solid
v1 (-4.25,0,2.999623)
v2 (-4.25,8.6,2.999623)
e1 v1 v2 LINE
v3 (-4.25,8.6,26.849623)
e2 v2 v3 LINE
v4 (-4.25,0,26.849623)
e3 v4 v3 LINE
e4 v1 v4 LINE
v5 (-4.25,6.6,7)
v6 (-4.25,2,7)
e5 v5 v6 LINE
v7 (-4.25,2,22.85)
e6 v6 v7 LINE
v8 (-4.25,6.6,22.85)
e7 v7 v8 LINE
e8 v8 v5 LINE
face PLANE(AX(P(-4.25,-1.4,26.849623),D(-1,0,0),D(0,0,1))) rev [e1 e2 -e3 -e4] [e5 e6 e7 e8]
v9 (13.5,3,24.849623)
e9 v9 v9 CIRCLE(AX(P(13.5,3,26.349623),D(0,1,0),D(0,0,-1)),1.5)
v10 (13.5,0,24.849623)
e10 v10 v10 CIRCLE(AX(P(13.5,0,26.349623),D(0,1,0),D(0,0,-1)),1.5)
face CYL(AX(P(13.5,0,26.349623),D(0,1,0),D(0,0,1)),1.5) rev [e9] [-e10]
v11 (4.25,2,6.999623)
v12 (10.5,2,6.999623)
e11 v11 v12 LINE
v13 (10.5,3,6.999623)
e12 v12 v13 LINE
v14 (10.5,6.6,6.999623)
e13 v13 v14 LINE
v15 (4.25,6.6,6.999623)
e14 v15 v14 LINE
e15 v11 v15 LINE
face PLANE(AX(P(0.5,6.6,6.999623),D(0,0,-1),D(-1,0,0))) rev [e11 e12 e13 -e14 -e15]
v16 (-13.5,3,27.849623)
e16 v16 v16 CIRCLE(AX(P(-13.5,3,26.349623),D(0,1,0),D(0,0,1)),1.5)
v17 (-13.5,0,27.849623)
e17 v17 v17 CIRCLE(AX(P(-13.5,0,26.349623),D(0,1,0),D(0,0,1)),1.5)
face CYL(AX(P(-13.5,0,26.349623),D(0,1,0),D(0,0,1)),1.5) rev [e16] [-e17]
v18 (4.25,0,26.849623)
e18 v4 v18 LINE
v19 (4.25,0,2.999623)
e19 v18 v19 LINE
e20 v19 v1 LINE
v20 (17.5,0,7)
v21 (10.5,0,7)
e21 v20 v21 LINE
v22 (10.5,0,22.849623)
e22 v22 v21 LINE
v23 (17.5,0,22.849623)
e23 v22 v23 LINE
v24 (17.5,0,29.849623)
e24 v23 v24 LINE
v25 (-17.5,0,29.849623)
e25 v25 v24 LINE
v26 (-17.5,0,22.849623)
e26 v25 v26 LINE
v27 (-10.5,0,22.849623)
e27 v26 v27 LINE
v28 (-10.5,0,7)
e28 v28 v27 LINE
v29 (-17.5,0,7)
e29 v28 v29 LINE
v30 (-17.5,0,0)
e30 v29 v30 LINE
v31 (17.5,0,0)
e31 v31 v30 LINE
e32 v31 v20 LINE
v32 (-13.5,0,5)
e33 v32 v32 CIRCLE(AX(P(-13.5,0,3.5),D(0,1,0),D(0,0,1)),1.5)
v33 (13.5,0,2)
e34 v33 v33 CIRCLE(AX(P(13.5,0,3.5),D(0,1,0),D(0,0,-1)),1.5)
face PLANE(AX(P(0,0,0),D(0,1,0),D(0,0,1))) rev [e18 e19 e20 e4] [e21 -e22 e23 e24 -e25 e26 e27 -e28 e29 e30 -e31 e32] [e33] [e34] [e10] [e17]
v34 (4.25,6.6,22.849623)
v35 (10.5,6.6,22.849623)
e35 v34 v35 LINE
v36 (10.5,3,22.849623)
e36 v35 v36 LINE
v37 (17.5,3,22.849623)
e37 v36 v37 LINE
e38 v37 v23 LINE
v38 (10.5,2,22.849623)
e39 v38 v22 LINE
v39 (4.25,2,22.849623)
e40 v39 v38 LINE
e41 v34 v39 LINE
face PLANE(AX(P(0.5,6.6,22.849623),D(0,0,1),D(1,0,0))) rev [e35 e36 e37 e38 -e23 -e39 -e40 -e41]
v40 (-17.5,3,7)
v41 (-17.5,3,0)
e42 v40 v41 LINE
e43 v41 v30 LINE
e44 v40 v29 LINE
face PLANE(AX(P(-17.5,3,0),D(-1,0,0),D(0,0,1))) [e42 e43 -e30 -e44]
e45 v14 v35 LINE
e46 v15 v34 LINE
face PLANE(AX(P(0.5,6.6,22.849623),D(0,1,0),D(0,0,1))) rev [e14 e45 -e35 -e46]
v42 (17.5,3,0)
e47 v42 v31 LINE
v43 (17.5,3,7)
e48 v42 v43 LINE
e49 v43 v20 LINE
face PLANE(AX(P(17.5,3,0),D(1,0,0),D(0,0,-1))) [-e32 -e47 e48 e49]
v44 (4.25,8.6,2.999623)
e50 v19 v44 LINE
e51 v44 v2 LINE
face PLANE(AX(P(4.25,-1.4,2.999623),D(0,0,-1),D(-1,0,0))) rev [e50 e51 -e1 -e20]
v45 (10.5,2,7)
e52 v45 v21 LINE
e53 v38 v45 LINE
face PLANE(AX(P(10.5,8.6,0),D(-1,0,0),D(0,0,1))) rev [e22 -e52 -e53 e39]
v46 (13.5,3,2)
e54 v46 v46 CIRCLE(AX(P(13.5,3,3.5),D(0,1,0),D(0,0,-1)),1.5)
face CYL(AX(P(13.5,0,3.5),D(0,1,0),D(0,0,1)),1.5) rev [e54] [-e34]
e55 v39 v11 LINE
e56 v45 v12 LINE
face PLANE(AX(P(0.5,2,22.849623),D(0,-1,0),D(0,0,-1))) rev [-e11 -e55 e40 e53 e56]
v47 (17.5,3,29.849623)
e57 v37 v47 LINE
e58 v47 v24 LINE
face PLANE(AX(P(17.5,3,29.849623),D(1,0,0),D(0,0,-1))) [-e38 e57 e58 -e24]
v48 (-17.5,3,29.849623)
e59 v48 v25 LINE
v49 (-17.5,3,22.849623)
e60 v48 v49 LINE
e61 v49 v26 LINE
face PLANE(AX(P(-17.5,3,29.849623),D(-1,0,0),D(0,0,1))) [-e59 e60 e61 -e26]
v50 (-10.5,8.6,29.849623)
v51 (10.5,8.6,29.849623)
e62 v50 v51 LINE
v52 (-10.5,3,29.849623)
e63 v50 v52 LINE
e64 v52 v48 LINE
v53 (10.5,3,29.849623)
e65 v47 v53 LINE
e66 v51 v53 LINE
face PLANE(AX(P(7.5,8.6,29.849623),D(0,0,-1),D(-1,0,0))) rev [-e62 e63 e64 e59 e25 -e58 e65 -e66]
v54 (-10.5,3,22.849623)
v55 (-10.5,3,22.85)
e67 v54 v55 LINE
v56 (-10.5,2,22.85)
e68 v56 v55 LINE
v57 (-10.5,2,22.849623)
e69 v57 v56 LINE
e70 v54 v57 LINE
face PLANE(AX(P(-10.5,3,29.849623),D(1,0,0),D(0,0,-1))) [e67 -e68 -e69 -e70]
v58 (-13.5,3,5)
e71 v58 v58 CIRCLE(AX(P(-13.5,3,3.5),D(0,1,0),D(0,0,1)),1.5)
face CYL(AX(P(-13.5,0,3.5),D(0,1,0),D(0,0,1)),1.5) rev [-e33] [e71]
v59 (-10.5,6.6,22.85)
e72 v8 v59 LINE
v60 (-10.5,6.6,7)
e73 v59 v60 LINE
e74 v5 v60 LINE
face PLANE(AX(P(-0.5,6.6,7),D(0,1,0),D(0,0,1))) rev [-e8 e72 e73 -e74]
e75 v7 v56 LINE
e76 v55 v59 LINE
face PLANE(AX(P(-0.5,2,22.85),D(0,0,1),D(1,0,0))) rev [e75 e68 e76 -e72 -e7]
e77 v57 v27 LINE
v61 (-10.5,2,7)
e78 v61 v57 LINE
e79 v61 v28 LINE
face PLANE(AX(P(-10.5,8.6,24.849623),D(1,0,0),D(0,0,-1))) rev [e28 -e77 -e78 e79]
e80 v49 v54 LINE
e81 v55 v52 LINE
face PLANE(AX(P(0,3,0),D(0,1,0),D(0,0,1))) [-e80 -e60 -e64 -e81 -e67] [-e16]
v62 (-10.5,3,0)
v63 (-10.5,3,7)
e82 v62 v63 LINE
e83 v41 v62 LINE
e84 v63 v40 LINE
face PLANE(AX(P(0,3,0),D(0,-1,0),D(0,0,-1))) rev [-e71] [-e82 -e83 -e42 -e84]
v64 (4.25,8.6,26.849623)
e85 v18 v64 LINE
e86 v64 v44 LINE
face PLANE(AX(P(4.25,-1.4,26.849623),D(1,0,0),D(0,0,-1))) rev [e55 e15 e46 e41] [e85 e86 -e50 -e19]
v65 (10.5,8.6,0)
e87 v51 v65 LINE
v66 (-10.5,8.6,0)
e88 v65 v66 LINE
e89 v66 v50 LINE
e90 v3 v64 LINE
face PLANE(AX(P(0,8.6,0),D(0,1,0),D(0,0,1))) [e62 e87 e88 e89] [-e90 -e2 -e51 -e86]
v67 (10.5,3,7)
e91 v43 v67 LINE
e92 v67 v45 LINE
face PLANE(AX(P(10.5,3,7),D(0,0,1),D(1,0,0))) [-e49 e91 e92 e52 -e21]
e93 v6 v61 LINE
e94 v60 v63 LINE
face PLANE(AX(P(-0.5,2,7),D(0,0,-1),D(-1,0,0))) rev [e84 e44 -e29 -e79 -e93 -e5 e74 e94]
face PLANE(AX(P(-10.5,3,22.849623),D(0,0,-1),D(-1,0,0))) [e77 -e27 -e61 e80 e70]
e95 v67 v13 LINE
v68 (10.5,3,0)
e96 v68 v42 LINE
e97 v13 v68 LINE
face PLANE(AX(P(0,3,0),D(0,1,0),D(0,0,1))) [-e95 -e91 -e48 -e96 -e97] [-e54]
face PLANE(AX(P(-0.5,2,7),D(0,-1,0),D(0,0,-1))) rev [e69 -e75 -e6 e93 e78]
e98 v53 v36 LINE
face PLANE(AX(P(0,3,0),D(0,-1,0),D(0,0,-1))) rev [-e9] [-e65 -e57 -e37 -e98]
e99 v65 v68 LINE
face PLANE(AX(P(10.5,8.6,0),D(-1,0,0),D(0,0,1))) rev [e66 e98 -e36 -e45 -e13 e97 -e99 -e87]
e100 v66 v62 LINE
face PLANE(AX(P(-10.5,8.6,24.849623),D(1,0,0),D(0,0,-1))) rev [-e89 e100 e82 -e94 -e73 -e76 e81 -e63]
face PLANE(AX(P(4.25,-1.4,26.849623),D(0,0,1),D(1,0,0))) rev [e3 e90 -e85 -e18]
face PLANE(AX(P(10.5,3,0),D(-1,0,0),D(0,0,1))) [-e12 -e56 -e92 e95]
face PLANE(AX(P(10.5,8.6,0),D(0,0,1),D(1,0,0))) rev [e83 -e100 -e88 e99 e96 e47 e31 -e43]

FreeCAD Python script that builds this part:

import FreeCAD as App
import Part
import Sketcher

V = App.Vector

doc = App.newDocument("Part")
params = doc.addObject("Spreadsheet::Sheet", "Params")
for row, (alias, value) in enumerate([
    ("sketch1_width", "21 mm"),
    ("pad1_length", "8.6 mm"),
    ("sketch2_width", "8.5 mm"),
    ("sketch2_height", "23.85 mm"),
    ("pocket1_length", "10 mm"),
    ("sketch3_width", "4.6 mm"),
    ("sketch3_height", "15.85 mm"),
    ("pocket2_length", "10 mm"),
    ("sketch4_width", "4.6 mm"),
    ("sketch4_height", "15.85 mm"),
    ("pocket3_length", "10 mm"),
    ("sketch5_width", "7 mm"),
    ("pad2_length", "3 mm"),
    ("sketch6_diameter", "3 mm"),
    ("pocket4_length", "3 mm"),
], start=1):
    params.set(f"A{row}", alias)
    params.set(f"B{row}", "=" + value)
    params.setAlias(f"B{row}", alias)

body = doc.addObject("PartDesign::Body", "Body")

sketch1 = body.newObject("Sketcher::SketchObject", "Sketch")
sketch1.AttachmentSupport = (doc.getObject("XZ_Plane"), [""])
sketch1.MapMode = "FlatFace"
sketch1.addGeometry([
    Part.LineSegment(V(-10.5, 0, 0), V(-10.5, 29.849623, 0)),
    Part.LineSegment(V(-10.5, 29.849623, 0), V(10.5, 29.849623, 0)),
    Part.LineSegment(V(10.5, 29.849623, 0), V(10.5, 0, 0)),
    Part.LineSegment(V(10.5, 0, 0), V(-10.5, 0, 0)),
], False)
sketch1.addConstraint([
    Sketcher.Constraint("Coincident", 0, 2, 1, 1),
    Sketcher.Constraint("Coincident", 1, 2, 2, 1),
    Sketcher.Constraint("Coincident", 2, 2, 3, 1),
    Sketcher.Constraint("Coincident", 3, 2, 0, 1),
    Sketcher.Constraint("Vertical", 0),
    Sketcher.Constraint("Horizontal", 1),
    Sketcher.Constraint("Vertical", 2),
    Sketcher.Constraint("Horizontal", 3),
    Sketcher.Constraint("Symmetric", 2, 2, 3, 2, -1, 1),
    Sketcher.Constraint("DistanceX", 1, 1, 1, 2, 21.0),
    Sketcher.Constraint("DistanceY", 0, 1, 0, 2, 29.849623),
])
sketch1.setExpression("Constraints[9]", "Params.sketch1_width")
pad1 = body.newObject("PartDesign::Pad", "Pad")
pad1.Profile = sketch1
pad1.setExpression("Length", "Params.pad1_length")
pad1.Reversed = True

sketch2 = body.newObject("Sketcher::SketchObject", "Sketch001")
sketch2.AttachmentSupport = (doc.getObject("XZ_Plane"), [""])
sketch2.MapMode = "FlatFace"
sketch2.AttachmentOffset = App.Placement(V(0, 0, -8.6), App.Rotation())
sketch2.addGeometry([
    Part.LineSegment(V(-4.25, 2.999623, 0), V(-4.25, 26.849623, 0)),
    Part.LineSegment(V(-4.25, 26.849623, 0), V(4.25, 26.849623, 0)),
    Part.LineSegment(V(4.25, 26.849623, 0), V(4.25, 2.999623, 0)),
    Part.LineSegment(V(4.25, 2.999623, 0), V(-4.25, 2.999623, 0)),
], False)
sketch2.addConstraint([
    Sketcher.Constraint("Coincident", 0, 2, 1, 1),
    Sketcher.Constraint("Coincident", 1, 2, 2, 1),
    Sketcher.Constraint("Coincident", 2, 2, 3, 1),
    Sketcher.Constraint("Coincident", 3, 2, 0, 1),
    Sketcher.Constraint("Vertical", 0),
    Sketcher.Constraint("Horizontal", 1),
    Sketcher.Constraint("Vertical", 2),
    Sketcher.Constraint("Horizontal", 3),
    Sketcher.Constraint("DistanceX", 1, 1, 1, 2, 8.5),
    Sketcher.Constraint("DistanceY", 0, 1, 0, 2, 23.85),
    Sketcher.Constraint("DistanceX", 0, 2, -1, 1, 4.25),
    Sketcher.Constraint("DistanceY", -1, 1, 0, 2, 26.849623),
])
sketch2.setExpression("Constraints[8]", "Params.sketch2_width")
sketch2.setExpression("Constraints[9]", "Params.sketch2_height")
pocket1 = body.newObject("PartDesign::Pocket", "Pocket")
pocket1.Profile = sketch2
pocket1.setExpression("Length", "Params.pocket1_length")
pocket1.Reversed = True

sketch3 = body.newObject("Sketcher::SketchObject", "Sketch002")
sketch3.AttachmentSupport = (doc.getObject("YZ_Plane"), [""])
sketch3.MapMode = "FlatFace"
sketch3.AttachmentOffset = App.Placement(V(0, 0, -10.5), App.Rotation())
sketch3.addGeometry([
    Part.LineSegment(V(6.6, 7, 0), V(2, 7, 0)),
    Part.LineSegment(V(2, 7, 0), V(2, 22.85, 0)),
    Part.LineSegment(V(2, 22.85, 0), V(6.6, 22.85, 0)),
    Part.LineSegment(V(6.6, 22.85, 0), V(6.6, 7, 0)),
], False)
sketch3.addConstraint([
    Sketcher.Constraint("Coincident", 0, 2, 1, 1),
    Sketcher.Constraint("Coincident", 1, 2, 2, 1),
    Sketcher.Constraint("Coincident", 2, 2, 3, 1),
    Sketcher.Constraint("Coincident", 3, 2, 0, 1),
    Sketcher.Constraint("Horizontal", 0),
    Sketcher.Constraint("Vertical", 1),
    Sketcher.Constraint("Horizontal", 2),
    Sketcher.Constraint("Vertical", 3),
    Sketcher.Constraint("DistanceX", 0, 2, 0, 1, 4.6),
    Sketcher.Constraint("DistanceX", -1, 1, 0, 2, 2.0),
    Sketcher.Constraint("DistanceY", -1, 1, 0, 2, 7.0),
    Sketcher.Constraint("DistanceY", 1, 1, 1, 2, 15.85),
])
sketch3.setExpression("Constraints[8]", "Params.sketch3_width")
sketch3.setExpression("Constraints[11]", "Params.sketch3_height")
pocket2 = body.newObject("PartDesign::Pocket", "Pocket001")
pocket2.Profile = sketch3
pocket2.setExpression("Length", "Params.pocket2_length")
pocket2.Reversed = True

sketch4 = body.newObject("Sketcher::SketchObject", "Sketch003")
sketch4.AttachmentSupport = (doc.getObject("YZ_Plane"), [""])
sketch4.MapMode = "FlatFace"
sketch4.AttachmentOffset = App.Placement(V(0, 0, 10.5), App.Rotation())
sketch4.addGeometry([
    Part.LineSegment(V(6.6, 22.849623, 0), V(2, 22.849623, 0)),
    Part.LineSegment(V(2, 22.849623, 0), V(2, 6.999623, 0)),
    Part.LineSegment(V(2, 6.999623, 0), V(6.6, 6.999623, 0)),
    Part.LineSegment(V(6.6, 6.999623, 0), V(6.6, 22.849623, 0)),
], False)
sketch4.addConstraint([
    Sketcher.Constraint("Coincident", 0, 2, 1, 1),
    Sketcher.Constraint("Coincident", 1, 2, 2, 1),
    Sketcher.Constraint("Coincident", 2, 2, 3, 1),
    Sketcher.Constraint("Coincident", 3, 2, 0, 1),
    Sketcher.Constraint("Horizontal", 0),
    Sketcher.Constraint("Vertical", 1),
    Sketcher.Constraint("Horizontal", 2),
    Sketcher.Constraint("Vertical", 3),
    Sketcher.Constraint("DistanceX", 0, 2, 0, 1, 4.6),
    Sketcher.Constraint("DistanceX", -1, 1, 0, 2, 2.0),
    Sketcher.Constraint("DistanceY", 1, 2, 1, 1, 15.85),
    Sketcher.Constraint("DistanceY", -1, 1, 0, 2, 22.849623),
])
sketch4.setExpression("Constraints[8]", "Params.sketch4_width")
sketch4.setExpression("Constraints[10]", "Params.sketch4_height")
pocket3 = body.newObject("PartDesign::Pocket", "Pocket002")
pocket3.Profile = sketch4
pocket3.setExpression("Length", "Params.pocket3_length")

sketch5 = body.newObject("Sketcher::SketchObject", "Sketch004")
sketch5.AttachmentSupport = (doc.getObject("XZ_Plane"), [""])
sketch5.MapMode = "FlatFace"
sketch5.addGeometry([
    Part.LineSegment(V(-17.5, 29.849623, 0), V(-17.5, 22.849623, 0)),
    Part.LineSegment(V(-17.5, 22.849623, 0), V(-10.5, 22.849623, 0)),
    Part.LineSegment(V(-10.5, 22.849623, 0), V(-10.5, 29.849623, 0)),
    Part.LineSegment(V(-10.5, 29.849623, 0), V(-17.5, 29.849623, 0)),
    Part.LineSegment(V(10.5, 29.849623, 0), V(10.5, 22.849623, 0)),
    Part.LineSegment(V(10.5, 22.849623, 0), V(17.5, 22.849623, 0)),
    Part.LineSegment(V(17.5, 22.849623, 0), V(17.5, 29.849623, 0)),
    Part.LineSegment(V(17.5, 29.849623, 0), V(10.5, 29.849623, 0)),
    Part.LineSegment(V(-17.5, 7, 0), V(-17.5, 0, 0)),
    Part.LineSegment(V(-17.5, 0, 0), V(-10.5, 0, 0)),
    Part.LineSegment(V(-10.5, 0, 0), V(-10.5, 7, 0)),
    Part.LineSegment(V(-10.5, 7, 0), V(-17.5, 7, 0)),
    Part.LineSegment(V(10.5, 7, 0), V(10.5, 0, 0)),
    Part.LineSegment(V(10.5, 0, 0), V(17.5, 0, 0)),
    Part.LineSegment(V(17.5, 0, 0), V(17.5, 7, 0)),
    Part.LineSegment(V(17.5, 7, 0), V(10.5, 7, 0)),
], False)
sketch5.addConstraint([
    Sketcher.Constraint("Coincident", 0, 2, 1, 1),
    Sketcher.Constraint("Coincident", 1, 2, 2, 1),
    Sketcher.Constraint("Coincident", 2, 2, 3, 1),
    Sketcher.Constraint("Coincident", 3, 2, 0, 1),
    Sketcher.Constraint("Coincident", 4, 2, 5, 1),
    Sketcher.Constraint("Coincident", 5, 2, 6, 1),
    Sketcher.Constraint("Coincident", 6, 2, 7, 1),
    Sketcher.Constraint("Coincident", 7, 2, 4, 1),
    Sketcher.Constraint("Coincident", 8, 2, 9, 1),
    Sketcher.Constraint("Coincident", 9, 2, 10, 1),
    Sketcher.Constraint("Coincident", 10, 2, 11, 1),
    Sketcher.Constraint("Coincident", 11, 2, 8, 1),
    Sketcher.Constraint("Coincident", 12, 2, 13, 1),
    Sketcher.Constraint("Coincident", 13, 2, 14, 1),
    Sketcher.Constraint("Coincident", 14, 2, 15, 1),
    Sketcher.Constraint("Coincident", 15, 2, 12, 1),
    Sketcher.Constraint("Vertical", 0),
    Sketcher.Constraint("Horizontal", 1),
    Sketcher.Constraint("Vertical", 2),
    Sketcher.Constraint("Horizontal", 3),
    Sketcher.Constraint("Vertical", 4),
    Sketcher.Constraint("Horizontal", 5),
    Sketcher.Constraint("Vertical", 6),
    Sketcher.Constraint("Horizontal", 7),
    Sketcher.Constraint("Vertical", 8),
    Sketcher.Constraint("Horizontal", 9),
    Sketcher.Constraint("Vertical", 10),
    Sketcher.Constraint("Horizontal", 11),
    Sketcher.Constraint("Vertical", 12),
    Sketcher.Constraint("Horizontal", 13),
    Sketcher.Constraint("Vertical", 14),
    Sketcher.Constraint("Horizontal", 15),
    Sketcher.Constraint("Symmetric", 9, 2, 12, 2, -1, 1),
    Sketcher.Constraint("Symmetric", 1, 2, 4, 2, -2),
    Sketcher.Constraint("Symmetric", 3, 2, 6, 2, -2),
    Sketcher.Constraint("Symmetric", 8, 2, 13, 2, -2),
    Sketcher.Constraint("Horizontal", 11, 2, 14, 2),
    Sketcher.Constraint("Vertical", 3, 2, 8, 2),
    Sketcher.Constraint("Vertical", 2, 2, 9, 2),
    Sketcher.Constraint("Equal", 15, 0),
    Sketcher.Constraint("Equal", 6, 8),
    Sketcher.Constraint("DistanceX", 1, 1, 1, 2, 7.0),
    Sketcher.Constraint("DistanceX", 1, 2, 4, 2, 21.0),
    Sketcher.Constraint("DistanceY", -1, 1, 0, 2, 22.849623),
])
sketch5.setExpression("Constraints[41]", "Params.sketch5_width")
pad2 = body.newObject("PartDesign::Pad", "Pad001")
pad2.Profile = sketch5
pad2.setExpression("Length", "Params.pad2_length")
pad2.Reversed = True

sketch6 = body.newObject("Sketcher::SketchObject", "Sketch005")
sketch6.AttachmentSupport = (doc.getObject("XZ_Plane"), [""])
sketch6.MapMode = "FlatFace"
sketch6.AttachmentOffset = App.Placement(V(0, 0, -3), App.Rotation())
sketch6.addGeometry([
    Part.Circle(V(-13.5, 3.5, 0), V(0, 0, 1), 1.5),
    Part.Circle(V(-13.5, 26.349623, 0), V(0, 0, 1), 1.5),
    Part.Circle(V(13.5, 26.349623, 0), V(0, 0, 1), 1.5),
    Part.Circle(V(13.5, 3.5, 0), V(0, 0, 1), 1.5),
], False)
sketch6.addConstraint([
    Sketcher.Constraint("Equal", 0, 1),
    Sketcher.Constraint("Equal", 1, 2),
    Sketcher.Constraint("Equal", 2, 3),
    Sketcher.Constraint("Symmetric", 1, 3, 2, 3, -2),
    Sketcher.Constraint("Symmetric", 0, 3, 3, 3, -2),
    Sketcher.Constraint("Vertical", 0, 3, 1, 3),
    Sketcher.Constraint("Diameter", 0, 3.0),
    Sketcher.Constraint("DistanceX", 1, 3, 2, 3, 27.0),
    Sketcher.Constraint("DistanceY", -1, 1, 0, 3, 3.5),
    Sketcher.Constraint("DistanceY", -1, 1, 1, 3, 26.349623),
])
sketch6.setExpression("Constraints[6]", "Params.sketch6_diameter")
pocket4 = body.newObject("PartDesign::Pocket", "Pocket003")
pocket4.Profile = sketch6
pocket4.setExpression("Length", "Params.pocket4_length")
pocket4.Reversed = True

doc.recompute()
